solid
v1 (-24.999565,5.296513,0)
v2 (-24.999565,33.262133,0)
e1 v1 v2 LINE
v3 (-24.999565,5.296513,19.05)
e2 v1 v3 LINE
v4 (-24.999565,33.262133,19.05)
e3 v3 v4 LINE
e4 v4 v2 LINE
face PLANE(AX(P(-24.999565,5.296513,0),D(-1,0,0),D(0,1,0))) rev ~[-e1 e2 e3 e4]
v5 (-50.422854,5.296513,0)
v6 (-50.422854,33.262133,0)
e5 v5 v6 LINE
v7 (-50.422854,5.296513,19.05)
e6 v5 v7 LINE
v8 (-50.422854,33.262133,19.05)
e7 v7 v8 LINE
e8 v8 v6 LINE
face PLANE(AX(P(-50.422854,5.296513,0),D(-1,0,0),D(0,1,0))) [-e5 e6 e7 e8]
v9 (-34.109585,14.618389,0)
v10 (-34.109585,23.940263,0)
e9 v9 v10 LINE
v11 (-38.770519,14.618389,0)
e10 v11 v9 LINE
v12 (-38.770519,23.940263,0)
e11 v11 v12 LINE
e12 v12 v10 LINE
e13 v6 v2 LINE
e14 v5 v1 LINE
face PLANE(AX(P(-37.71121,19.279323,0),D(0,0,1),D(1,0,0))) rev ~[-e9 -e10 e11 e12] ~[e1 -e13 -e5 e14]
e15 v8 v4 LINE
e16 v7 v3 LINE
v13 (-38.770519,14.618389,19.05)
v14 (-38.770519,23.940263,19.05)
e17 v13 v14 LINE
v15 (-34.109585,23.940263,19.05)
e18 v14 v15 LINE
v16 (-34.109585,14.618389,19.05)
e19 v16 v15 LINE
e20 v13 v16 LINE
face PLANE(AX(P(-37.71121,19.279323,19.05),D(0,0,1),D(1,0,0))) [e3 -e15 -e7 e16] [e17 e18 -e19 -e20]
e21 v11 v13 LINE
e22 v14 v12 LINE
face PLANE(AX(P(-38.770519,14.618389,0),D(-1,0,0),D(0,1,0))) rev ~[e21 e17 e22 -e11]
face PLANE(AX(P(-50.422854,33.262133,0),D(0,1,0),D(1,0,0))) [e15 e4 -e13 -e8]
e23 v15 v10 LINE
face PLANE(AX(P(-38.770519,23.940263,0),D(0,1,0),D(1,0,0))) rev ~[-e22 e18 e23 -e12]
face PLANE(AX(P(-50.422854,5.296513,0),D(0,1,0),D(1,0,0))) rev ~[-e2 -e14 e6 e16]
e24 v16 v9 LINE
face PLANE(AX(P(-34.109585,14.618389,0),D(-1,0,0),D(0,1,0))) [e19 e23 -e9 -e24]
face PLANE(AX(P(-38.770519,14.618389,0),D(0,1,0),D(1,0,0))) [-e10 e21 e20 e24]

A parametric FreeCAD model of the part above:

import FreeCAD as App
import Part
import Sketcher

V = App.Vector
Q = App.Units.Quantity

doc = App.newDocument("Part")
body = doc.addObject("PartDesign::Body", "Body")

# Sketch on XY plane
sketch1 = body.newObject("Sketcher::SketchObject", "Sketch")
sketch1.AttachmentSupport = (doc.getObject("XY_Plane"), [""])
sketch1.MapMode = "FlatFace"
sketch1.addGeometry(Part.LineSegment(V(-50.4, 33.3, 0), V(-50.4, 5.3, 0)), False)
sketch1.addGeometry(Part.LineSegment(V(-50.4, 5.3, 0), V(-25, 5.3, 0)), False)
sketch1.addGeometry(Part.LineSegment(V(-25, 5.3, 0), V(-25, 33.3, 0)), False)
sketch1.addGeometry(Part.LineSegment(V(-25, 33.3, 0), V(-50.4, 33.3, 0)), False)
sketch1.addGeometry(Part.LineSegment(V(-34.1, 14.6, 0), V(-38.8, 14.6, 0)), False)
sketch1.addGeometry(Part.LineSegment(V(-38.8, 14.6, 0), V(-38.8, 23.9, 0)), False)
sketch1.addGeometry(Part.LineSegment(V(-38.8, 23.9, 0), V(-34.1, 23.9, 0)), False)
sketch1.addGeometry(Part.LineSegment(V(-34.1, 23.9, 0), V(-34.1, 14.6, 0)), False)
sketch1.addConstraint(Sketcher.Constraint("Coincident", 0, 2, 1, 1))
sketch1.addConstraint(Sketcher.Constraint("Coincident", 1, 2, 2, 1))
sketch1.addConstraint(Sketcher.Constraint("Coincident", 2, 2, 3, 1))
sketch1.addConstraint(Sketcher.Constraint("Coincident", 3, 2, 0, 1))
sketch1.addConstraint(Sketcher.Constraint("Coincident", 4, 2, 5, 1))
sketch1.addConstraint(Sketcher.Constraint("Coincident", 5, 2, 6, 1))
sketch1.addConstraint(Sketcher.Constraint("Coincident", 6, 2, 7, 1))
sketch1.addConstraint(Sketcher.Constraint("Coincident", 7, 2, 4, 1))
sketch1.addConstraint(Sketcher.Constraint("Vertical", 0))
sketch1.addConstraint(Sketcher.Constraint("Horizontal", 1))
sketch1.addConstraint(Sketcher.Constraint("Vertical", 2))
sketch1.addConstraint(Sketcher.Constraint("Horizontal", 3))
sketch1.addConstraint(Sketcher.Constraint("Horizontal", 4))
sketch1.addConstraint(Sketcher.Constraint("Vertical", 5))
sketch1.addConstraint(Sketcher.Constraint("Horizontal", 6))
sketch1.addConstraint(Sketcher.Constraint("Vertical", 7))
sketch1.addConstraint(Sketcher.Constraint("DistanceX", 1, 1, 1, 2, Q("25.423289 mm")))
sketch1.addConstraint(Sketcher.Constraint("DistanceY", 0, 2, 0, 1, Q("27.965621 mm")))
sketch1.addConstraint(Sketcher.Constraint("DistanceX", 4, 2, 4, 1, Q("4.660934 mm")))
sketch1.addConstraint(Sketcher.Constraint("DistanceY", 5, 1, 5, 2, Q("9.321874 mm")))
sketch1.addConstraint(Sketcher.Constraint("DistanceX", 4, 2, -1, 1, Q("38.770519 mm")))
sketch1.addConstraint(Sketcher.Constraint("DistanceY", -1, 1, 4, 2, Q("14.618389 mm")))
sketch1.addConstraint(Sketcher.Constraint("DistanceY", 5, 2, 3, 2, Q("9.32187 mm")))
sketch1.addConstraint(Sketcher.Constraint("DistanceX", 6, 2, 2, 2, Q("9.11002 mm")))
pad1 = body.newObject("PartDesign::Pad", "Pad")
pad1.Profile = sketch1
pad1.Length = Q("0.25 in")

# Sketch on XY plane
sketch2 = body.newObject("Sketcher::SketchObject", "Sketch001")
sketch2.AttachmentSupport = (doc.getObject("XY_Plane"), [""])
sketch2.MapMode = "FlatFace"
sketch2.addGeometry(Part.LineSegment(V(-50.4, 33.3, 0), V(-50.4, 5.3, 0)), False)
sketch2.addGeometry(Part.LineSegment(V(-50.4, 5.3, 0), V(-25, 5.3, 0)), False)
sketch2.addGeometry(Part.LineSegment(V(-25, 5.3, 0), V(-25, 33.3, 0)), False)
sketch2.addGeometry(Part.LineSegment(V(-25, 33.3, 0), V(-50.4, 33.3, 0)), False)
sketch2.addGeometry(Part.LineSegment(V(-34.1, 14.6, 0), V(-38.8, 14.6, 0)), False)
sketch2.addGeometry(Part.LineSegment(V(-38.8, 14.6, 0), V(-38.8, 23.9, 0)), False)
sketch2.addGeometry(Part.LineSegment(V(-38.8, 23.9, 0), V(-34.1, 23.9, 0)), False)
sketch2.addGeometry(Part.LineSegment(V(-34.1, 23.9, 0), V(-34.1, 14.6, 0)), False)
sketch2.addConstraint(Sketcher.Constraint("Coincident", 0, 2, 1, 1))
sketch2.addConstraint(Sketcher.Constraint("Coincident", 1, 2, 2, 1))
sketch2.addConstraint(Sketcher.Constraint("Coincident", 2, 2, 3, 1))
sketch2.addConstraint(Sketcher.Constraint("Coincident", 3, 2, 0, 1))
sketch2.addConstraint(Sketcher.Constraint("Coincident", 4, 2, 5, 1))
sketch2.addConstraint(Sketcher.Constraint("Coincident", 5, 2, 6, 1))
sketch2.addConstraint(Sketcher.Constraint("Coincident", 6, 2, 7, 1))
sketch2.addConstraint(Sketcher.Constraint("Coincident", 7, 2, 4, 1))
sketch2.addConstraint(Sketcher.Constraint("Vertical", 0))
sketch2.addConstraint(Sketcher.Constraint("Horizontal", 1))
sketch2.addConstraint(Sketcher.Constraint("Vertical", 2))
sketch2.addConstraint(Sketcher.Constraint("Horizontal", 3))
sketch2.addConstraint(Sketcher.Constraint("Horizontal", 4))
sketch2.addConstraint(Sketcher.Constraint("Vertical", 5))
sketch2.addConstraint(Sketcher.Constraint("Horizontal", 6))
sketch2.addConstraint(Sketcher.Constraint("Vertical", 7))
sketch2.addConstraint(Sketcher.Constraint("DistanceX", 1, 1, 1, 2, Q("25.423289 mm")))
sketch2.addConstraint(Sketcher.Constraint("DistanceY", 0, 2, 0, 1, Q("27.965621 mm")))
sketch2.addConstraint(Sketcher.Constraint("DistanceX", 4, 2, 4, 1, Q("4.660934 mm")))
sketch2.addConstraint(Sketcher.Constraint("DistanceY", 5, 1, 5, 2, Q("9.321874 mm")))
sketch2.addConstraint(Sketcher.Constraint("DistanceX", 4, 2, -1, 1, Q("38.770519 mm")))
sketch2.addConstraint(Sketcher.Constraint("DistanceY", -1, 1, 4, 2, Q("14.618389 mm")))
sketch2.addConstraint(Sketcher.Constraint("DistanceY", 5, 2, 3, 2, Q("9.32187 mm")))
sketch2.addConstraint(Sketcher.Constraint("DistanceX", 6, 2, 2, 2, Q("9.11002 mm")))
pad2 = body.newObject("PartDesign::Pad", "Pad001")
pad2.Profile = sketch2
pad2.Length = Q("0.75 in")

doc.recompute()
